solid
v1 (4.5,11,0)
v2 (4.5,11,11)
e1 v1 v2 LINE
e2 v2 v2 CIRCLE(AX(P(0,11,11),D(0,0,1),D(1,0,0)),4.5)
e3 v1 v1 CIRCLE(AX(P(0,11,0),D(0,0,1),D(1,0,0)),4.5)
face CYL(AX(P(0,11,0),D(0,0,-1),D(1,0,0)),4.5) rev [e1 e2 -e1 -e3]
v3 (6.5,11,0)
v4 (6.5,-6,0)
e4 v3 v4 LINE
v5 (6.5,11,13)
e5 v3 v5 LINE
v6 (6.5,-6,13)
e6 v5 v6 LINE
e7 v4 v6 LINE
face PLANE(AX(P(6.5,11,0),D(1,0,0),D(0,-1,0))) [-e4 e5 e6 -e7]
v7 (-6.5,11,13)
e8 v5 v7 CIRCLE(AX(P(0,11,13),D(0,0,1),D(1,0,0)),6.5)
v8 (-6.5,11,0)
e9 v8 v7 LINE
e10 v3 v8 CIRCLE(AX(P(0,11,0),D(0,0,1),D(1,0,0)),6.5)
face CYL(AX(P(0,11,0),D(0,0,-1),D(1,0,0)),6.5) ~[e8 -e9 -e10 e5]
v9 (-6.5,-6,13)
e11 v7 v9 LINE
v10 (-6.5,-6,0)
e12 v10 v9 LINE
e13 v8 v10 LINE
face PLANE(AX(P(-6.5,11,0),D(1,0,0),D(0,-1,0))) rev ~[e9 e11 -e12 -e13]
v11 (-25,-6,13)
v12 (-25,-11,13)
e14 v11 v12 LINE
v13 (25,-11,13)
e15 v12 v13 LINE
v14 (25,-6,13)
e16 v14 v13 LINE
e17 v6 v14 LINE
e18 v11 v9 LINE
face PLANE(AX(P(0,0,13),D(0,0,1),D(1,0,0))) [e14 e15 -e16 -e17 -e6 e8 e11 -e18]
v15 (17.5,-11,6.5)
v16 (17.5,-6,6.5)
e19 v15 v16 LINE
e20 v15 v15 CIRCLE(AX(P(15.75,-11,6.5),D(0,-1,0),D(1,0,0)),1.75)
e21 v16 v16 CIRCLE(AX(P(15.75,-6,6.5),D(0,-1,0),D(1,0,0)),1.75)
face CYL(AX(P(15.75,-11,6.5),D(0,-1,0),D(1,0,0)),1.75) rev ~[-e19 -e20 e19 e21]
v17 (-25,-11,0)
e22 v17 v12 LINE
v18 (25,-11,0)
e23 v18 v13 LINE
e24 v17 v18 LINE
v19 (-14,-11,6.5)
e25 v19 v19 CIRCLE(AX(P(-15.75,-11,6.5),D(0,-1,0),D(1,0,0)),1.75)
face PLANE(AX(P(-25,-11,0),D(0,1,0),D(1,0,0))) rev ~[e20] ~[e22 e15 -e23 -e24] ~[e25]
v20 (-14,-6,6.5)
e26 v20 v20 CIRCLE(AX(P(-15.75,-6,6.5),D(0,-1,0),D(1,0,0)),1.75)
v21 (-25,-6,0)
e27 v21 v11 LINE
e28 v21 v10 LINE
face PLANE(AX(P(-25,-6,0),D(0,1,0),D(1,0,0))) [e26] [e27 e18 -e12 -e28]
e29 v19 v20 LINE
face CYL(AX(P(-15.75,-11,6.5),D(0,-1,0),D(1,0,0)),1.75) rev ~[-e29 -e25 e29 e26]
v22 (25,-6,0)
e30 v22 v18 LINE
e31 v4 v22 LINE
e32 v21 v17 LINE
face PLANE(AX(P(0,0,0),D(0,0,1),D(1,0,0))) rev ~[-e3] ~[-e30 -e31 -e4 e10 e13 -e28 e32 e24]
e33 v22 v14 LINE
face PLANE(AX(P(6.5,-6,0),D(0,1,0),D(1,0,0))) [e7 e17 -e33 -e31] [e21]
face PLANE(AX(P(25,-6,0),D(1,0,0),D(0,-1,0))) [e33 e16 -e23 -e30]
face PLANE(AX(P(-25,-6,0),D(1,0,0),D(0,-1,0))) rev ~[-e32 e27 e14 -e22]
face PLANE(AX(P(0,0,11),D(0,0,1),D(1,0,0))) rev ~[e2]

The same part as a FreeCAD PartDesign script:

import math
import FreeCAD as App
import Part
import Sketcher

doc = App.newDocument("Part")
body = doc.addObject("PartDesign::Body", "Body")

sketch1 = body.newObject("Sketcher::SketchObject", "Sketch")
sketch1.AttachmentSupport = (doc.getObject("XY_Plane"), [""])
sketch1.MapMode = "FlatFace"
sketch1.addGeometry(Part.LineSegment(App.Vector(6.5, -6, 0), App.Vector(6.5, 11, 0)), False)
sketch1.addGeometry(Part.ArcOfCircle(Part.Circle(App.Vector(0, 11, 0), App.Vector(0, 0, 1), 6.5), math.radians(0), math.radians(180)), False)
sketch1.addGeometry(Part.LineSegment(App.Vector(-6.5, 11, 0), App.Vector(-6.5, -6, 0)), False)
sketch1.addGeometry(Part.LineSegment(App.Vector(-6.5, -6, 0), App.Vector(-25, -6, 0)), False)
sketch1.addGeometry(Part.LineSegment(App.Vector(-25, -6, 0), App.Vector(-25, -11, 0)), False)
sketch1.addGeometry(Part.LineSegment(App.Vector(-25, -11, 0), App.Vector(25, -11, 0)), False)
sketch1.addGeometry(Part.LineSegment(App.Vector(25, -11, 0), App.Vector(25, -6, 0)), False)
sketch1.addGeometry(Part.LineSegment(App.Vector(25, -6, 0), App.Vector(6.5, -6, 0)), False)
sketch1.addGeometry(Part.Circle(App.Vector(0, 11, 0), App.Vector(0, 0, 1), 4.5), False)
sketch1.addConstraint(Sketcher.Constraint("Tangent", 0, 2, 1, 1))
sketch1.addConstraint(Sketcher.Constraint("Tangent", 1, 2, 2, 1))
sketch1.addConstraint(Sketcher.Constraint("Coincident", 2, 2, 3, 1))
sketch1.addConstraint(Sketcher.Constraint("Coincident", 3, 2, 4, 1))
sketch1.addConstraint(Sketcher.Constraint("Coincident", 4, 2, 5, 1))
sketch1.addConstraint(Sketcher.Constraint("Coincident", 5, 2, 6, 1))
sketch1.addConstraint(Sketcher.Constraint("Coincident", 6, 2, 7, 1))
sketch1.addConstraint(Sketcher.Constraint("Coincident", 7, 2, 0, 1))
sketch1.addConstraint(Sketcher.Constraint("Vertical", 0))
sketch1.addConstraint(Sketcher.Constraint("Vertical", 2))
sketch1.addConstraint(Sketcher.Constraint("Horizontal", 3))
sketch1.addConstraint(Sketcher.Constraint("Vertical", 4))
sketch1.addConstraint(Sketcher.Constraint("Horizontal", 5))
sketch1.addConstraint(Sketcher.Constraint("Vertical", 6))
sketch1.addConstraint(Sketcher.Constraint("Horizontal", 7))
sketch1.addConstraint(Sketcher.Constraint("Coincident", 8, 3, 1, 3))
sketch1.addConstraint(Sketcher.Constraint("Symmetric", 3, 2, 6, 2, -2))
sketch1.addConstraint(Sketcher.Constraint("PointOnObject", 1, 3, -2))
sketch1.addConstraint(Sketcher.Constraint("Radius", 1, 6.5))
sketch1.addConstraint(Sketcher.Constraint("DistanceX", 5, 1, 5, 2, 50.0))
sketch1.addConstraint(Sketcher.Constraint("DistanceY", 4, 2, 4, 1, 5.0))
sketch1.addConstraint(Sketcher.Constraint("Diameter", 8, 9.0))
sketch1.addConstraint(Sketcher.Constraint("DistanceY", -1, 1, 1, 3, 11.0))
sketch1.addConstraint(Sketcher.Constraint("DistanceY", 4, 2, -1, 1, 11.0))
pad1 = body.newObject("PartDesign::Pad", "Pad")
pad1.Profile = sketch1
pad1.Length = 13

sketch2 = body.newObject("Sketcher::SketchObject", "Sketch001")
sketch2.AttachmentSupport = (doc.getObject("XZ_Plane"), [""])
sketch2.MapMode = "FlatFace"
sketch2.AttachmentOffset = App.Placement(App.Vector(0, 0, 11), App.Rotation())
sketch2.addGeometry(Part.Circle(App.Vector(-15.8, 6.5, 0), App.Vector(0, 0, 1), 1.8), False)
sketch2.addGeometry(Part.Circle(App.Vector(15.8, 6.5, 0), App.Vector(0, 0, 1), 1.8), False)
sketch2.addConstraint(Sketcher.Constraint("Equal", 0, 1))
sketch2.addConstraint(Sketcher.Constraint("Symmetric", 0, 3, 1, 3, -2))
sketch2.addConstraint(Sketcher.Constraint("Diameter", 0, 3.5))
sketch2.addConstraint(Sketcher.Constraint("DistanceY", -1, 1, 0, 3, 6.5))
sketch2.addConstraint(Sketcher.Constraint("DistanceX", 0, 3, 1, 3, 31.5))
pocket1 = body.newObject("PartDesign::Pocket", "Pocket")
pocket1.Profile = sketch2
pocket1.Length = 5

sketch3 = body.newObject("Sketcher::SketchObject", "Sketch002")
sketch3.AttachmentSupport = (doc.getObject("XY_Plane"), [""])
sketch3.MapMode = "FlatFace"
sketch3.AttachmentOffset = App.Placement(App.Vector(0, 0, 13), App.Rotation())
sketch3.addGeometry(Part.Circle(App.Vector(0, 11, 0), App.Vector(0, 0, 1), 4.5), False)
sketch3.addConstraint(Sketcher.Constraint("PointOnObject", 0, 3, -2))
sketch3.addConstraint(Sketcher.Constraint("Diameter", 0, 9.0))
sketch3.addConstraint(Sketcher.Constraint("DistanceY", -1, 1, 0, 3, 11.0))
pad2 = body.newObject("PartDesign::Pad", "Pad001")
pad2.Profile = sketch3
pad2.Length = 2
pad2.Reversed = True

doc.recompute()
